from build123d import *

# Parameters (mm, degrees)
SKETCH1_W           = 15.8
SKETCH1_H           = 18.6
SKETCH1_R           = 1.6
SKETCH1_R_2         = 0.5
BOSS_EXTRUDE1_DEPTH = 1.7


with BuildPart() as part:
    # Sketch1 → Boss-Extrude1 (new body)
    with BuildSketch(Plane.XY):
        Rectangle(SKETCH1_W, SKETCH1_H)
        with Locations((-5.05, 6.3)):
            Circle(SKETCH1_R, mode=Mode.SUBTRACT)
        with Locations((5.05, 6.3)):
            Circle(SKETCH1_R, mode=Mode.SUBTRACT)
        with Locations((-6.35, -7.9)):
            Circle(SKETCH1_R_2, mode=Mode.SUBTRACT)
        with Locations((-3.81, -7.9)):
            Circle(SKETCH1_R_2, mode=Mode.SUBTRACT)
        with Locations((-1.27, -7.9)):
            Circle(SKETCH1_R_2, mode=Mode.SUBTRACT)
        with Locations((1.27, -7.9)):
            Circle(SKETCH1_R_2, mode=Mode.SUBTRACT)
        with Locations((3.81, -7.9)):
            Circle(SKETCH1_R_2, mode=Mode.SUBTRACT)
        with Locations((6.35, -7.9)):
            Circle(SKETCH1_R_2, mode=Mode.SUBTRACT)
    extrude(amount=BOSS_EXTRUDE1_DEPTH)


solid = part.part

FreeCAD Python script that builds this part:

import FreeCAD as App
import Part
import Sketcher

V = App.Vector


def add_polygon(sketch, points):
    """Adds a closed chain of lines whose ends are joined by coincident constraints."""
    first, n = sketch.GeometryCount, len(points)
    for a, b in zip(points, points[1:] + points[:1]):
        sketch.addGeometry(Part.LineSegment(App.Vector(*a, 0), App.Vector(*b, 0)), False)
    for i in range(n):
        sketch.addConstraint(Sketcher.Constraint("Coincident", first + i, 2, first + (i + 1) % n, 1))

doc = App.newDocument("Part")
body = doc.addObject("PartDesign::Body", "Body")

sketch1 = body.newObject("Sketcher::SketchObject", "Sketch")
sketch1.AttachmentSupport = (doc.getObject("XY_Plane"), [""])
sketch1.MapMode = "FlatFace"
add_polygon(sketch1, [(-7.9, 9.3), (-7.9, -9.3), (7.9, -9.3), (7.9, 9.3)])
sketch1.addGeometry(Part.Circle(V(-6.3, -7.9, 0), V(0, 0, 1), 0.5), False)
sketch1.addGeometry(Part.Circle(V(-3.8, -7.9, 0), V(0, 0, 1), 0.5), False)
sketch1.addGeometry(Part.Circle(V(-1.3, -7.9, 0), V(0, 0, 1), 0.5), False)
sketch1.addGeometry(Part.Circle(V(1.3, -7.9, 0), V(0, 0, 1), 0.5), False)
sketch1.addGeometry(Part.Circle(V(3.8, -7.9, 0), V(0, 0, 1), 0.5), False)
sketch1.addGeometry(Part.Circle(V(6.3, -7.9, 0), V(0, 0, 1), 0.5), False)
sketch1.addGeometry(Part.Circle(V(-5, 6.3, 0), V(0, 0, 1), 1.6), False)
sketch1.addGeometry(Part.Circle(V(5, 6.3, 0), V(0, 0, 1), 1.6), False)
sketch1.addConstraint([
    Sketcher.Constraint("Vertical", 0),
    Sketcher.Constraint("Horizontal", 1),
    Sketcher.Constraint("Vertical", 2),
    Sketcher.Constraint("Horizontal", 3),
    Sketcher.Constraint("Equal", 4, 5),
    Sketcher.Constraint("Equal", 5, 6),
    Sketcher.Constraint("Equal", 6, 7),
    Sketcher.Constraint("Equal", 7, 8),
    Sketcher.Constraint("Equal", 8, 9),
    Sketcher.Constraint("Equal", 10, 11),
    Sketcher.Constraint("Symmetric", 0, 2, 2, 2, -1, 1),
    Sketcher.Constraint("Symmetric", 6, 3, 7, 3, -2),
    Sketcher.Constraint("Symmetric", 5, 3, 8, 3, -2),
    Sketcher.Constraint("Symmetric", 4, 3, 9, 3, -2),
    Sketcher.Constraint("Symmetric", 10, 3, 11, 3, -2),
    Sketcher.Constraint("Horizontal", 4, 3, 5, 3),
    Sketcher.Constraint("Horizontal", 5, 3, 6, 3),
    Sketcher.Constraint("Diameter", 4, 1.0),
    Sketcher.Constraint("Diameter", 10, 3.2),
    Sketcher.Constraint("DistanceX", 1, 1, 1, 2, 15.8),
    Sketcher.Constraint("DistanceY", 0, 2, 0, 1, 18.6),
    Sketcher.Constraint("DistanceY", 11, 3, 2, 2, 3.0),
    Sketcher.Constraint("DistanceY", 4, 3, -1, 1, 7.9),
    Sketcher.Constraint("DistanceX", 4, 3, 9, 3, 12.7),
    Sketcher.Constraint("DistanceX", 4, 3, 10, 3, 1.3),
    Sketcher.Constraint("DistanceX", 5, 3, -1, 1, 3.81),
    Sketcher.Constraint("DistanceX", 6, 3, -1, 1, 1.27),
])
pad1 = body.newObject("PartDesign::Pad", "Pad")
pad1.Profile = sketch1
pad1.Length = 1.7

doc.recompute()
